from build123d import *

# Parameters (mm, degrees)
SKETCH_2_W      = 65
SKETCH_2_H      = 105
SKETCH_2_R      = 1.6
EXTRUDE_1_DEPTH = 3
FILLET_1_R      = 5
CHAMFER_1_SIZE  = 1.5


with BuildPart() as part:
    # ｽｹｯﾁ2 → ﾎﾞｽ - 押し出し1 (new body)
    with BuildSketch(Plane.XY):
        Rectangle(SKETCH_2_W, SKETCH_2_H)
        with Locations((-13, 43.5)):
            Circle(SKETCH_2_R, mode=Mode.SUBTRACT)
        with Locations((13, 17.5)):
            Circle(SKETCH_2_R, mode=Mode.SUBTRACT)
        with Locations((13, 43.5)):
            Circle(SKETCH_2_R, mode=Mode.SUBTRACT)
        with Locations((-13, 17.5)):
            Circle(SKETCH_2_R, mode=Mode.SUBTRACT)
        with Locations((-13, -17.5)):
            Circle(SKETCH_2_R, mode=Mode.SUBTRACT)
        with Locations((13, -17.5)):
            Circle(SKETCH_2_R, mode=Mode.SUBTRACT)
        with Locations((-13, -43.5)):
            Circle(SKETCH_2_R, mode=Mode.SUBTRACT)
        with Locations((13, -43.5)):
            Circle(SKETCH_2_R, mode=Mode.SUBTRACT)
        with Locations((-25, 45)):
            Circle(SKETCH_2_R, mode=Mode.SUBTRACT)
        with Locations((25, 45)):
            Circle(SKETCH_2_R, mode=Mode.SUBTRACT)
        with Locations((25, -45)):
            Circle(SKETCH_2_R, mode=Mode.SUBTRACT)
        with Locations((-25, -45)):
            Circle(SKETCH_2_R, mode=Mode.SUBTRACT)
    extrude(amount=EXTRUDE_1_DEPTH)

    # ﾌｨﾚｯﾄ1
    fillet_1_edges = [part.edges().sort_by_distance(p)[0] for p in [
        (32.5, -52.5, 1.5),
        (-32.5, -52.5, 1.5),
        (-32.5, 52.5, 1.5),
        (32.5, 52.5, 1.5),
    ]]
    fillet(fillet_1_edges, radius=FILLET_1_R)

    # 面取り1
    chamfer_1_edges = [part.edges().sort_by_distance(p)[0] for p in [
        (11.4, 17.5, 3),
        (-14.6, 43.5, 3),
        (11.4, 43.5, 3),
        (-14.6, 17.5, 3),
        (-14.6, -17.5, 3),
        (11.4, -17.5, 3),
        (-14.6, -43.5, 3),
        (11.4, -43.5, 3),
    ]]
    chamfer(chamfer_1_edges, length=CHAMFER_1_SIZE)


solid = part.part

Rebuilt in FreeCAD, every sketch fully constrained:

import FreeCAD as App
import Part
import Sketcher
Q = App.Units.Quantity


def edges_at(feature, points):
    """Names of the edges that pass closest to the given points."""
    edges = feature.Shape.Edges
    near = lambda p: min(range(len(edges)), key=lambda i: edges[i].distToShape(Part.Vertex(*p))[0])
    return sorted({f"Edge{near(p) + 1}" for p in points})

doc = App.newDocument("Part")
body = doc.addObject("PartDesign::Body", "Body")

# Sketch on XY plane
sketch1 = body.newObject("Sketcher::SketchObject", "Sketch")
sketch1.AttachmentSupport = (doc.getObject("XY_Plane"), [""])
sketch1.MapMode = "FlatFace"
sketch1.addGeometry([
    Part.LineSegment(App.Vector(-32.5, 52.5, 0), App.Vector(-32.5, -52.5, 0)),  # 0
    Part.LineSegment(App.Vector(-32.5, -52.5, 0), App.Vector(32.5, -52.5, 0)),  # 1
    Part.LineSegment(App.Vector(32.5, -52.5, 0), App.Vector(32.5, 52.5, 0)),  # 2
    Part.LineSegment(App.Vector(32.5, 52.5, 0), App.Vector(-32.5, 52.5, 0)),  # 3
    Part.Circle(App.Vector(-25, -45, 0), App.Vector(0, 0, 1), 1.6),  # 4
    Part.Circle(App.Vector(-13, -43.5, 0), App.Vector(0, 0, 1), 1.6),  # 5
    Part.Circle(App.Vector(-13, -17.5, 0), App.Vector(0, 0, 1), 1.6),  # 6
    Part.Circle(App.Vector(13, -43.5, 0), App.Vector(0, 0, 1), 1.6),  # 7
    Part.Circle(App.Vector(25, -45, 0), App.Vector(0, 0, 1), 1.6),  # 8
    Part.Circle(App.Vector(13, -17.5, 0), App.Vector(0, 0, 1), 1.6),  # 9
    Part.Circle(App.Vector(-13, 17.5, 0), App.Vector(0, 0, 1), 1.6),  # 10
    Part.Circle(App.Vector(-25, 45, 0), App.Vector(0, 0, 1), 1.6),  # 11
    Part.Circle(App.Vector(-13, 43.5, 0), App.Vector(0, 0, 1), 1.6),  # 12
    Part.Circle(App.Vector(13, 17.5, 0), App.Vector(0, 0, 1), 1.6),  # 13
    Part.Circle(App.Vector(13, 43.5, 0), App.Vector(0, 0, 1), 1.6),  # 14
    Part.Circle(App.Vector(25, 45, 0), App.Vector(0, 0, 1), 1.6),  # 15
], False)
sketch1.addConstraint([
    Sketcher.Constraint("Coincident", 0, 2, 1, 1),
    Sketcher.Constraint("Coincident", 1, 2, 2, 1),
    Sketcher.Constraint("Coincident", 2, 2, 3, 1),
    Sketcher.Constraint("Coincident", 3, 2, 0, 1),
    Sketcher.Constraint("Vertical", 0),
    Sketcher.Constraint("Horizontal", 1),
    Sketcher.Constraint("Vertical", 2),
    Sketcher.Constraint("Horizontal", 3),
    Sketcher.Constraint("Equal", 4, 5),
    Sketcher.Constraint("Equal", 5, 6),
    Sketcher.Constraint("Equal", 6, 7),
    Sketcher.Constraint("Equal", 7, 8),
    Sketcher.Constraint("Equal", 8, 9),
    Sketcher.Constraint("Equal", 9, 10),
    Sketcher.Constraint("Equal", 10, 11),
    Sketcher.Constraint("Equal", 11, 12),
    Sketcher.Constraint("Equal", 12, 13),
    Sketcher.Constraint("Equal", 13, 14),
    Sketcher.Constraint("Equal", 14, 15),
    Sketcher.Constraint("Symmetric", 9, 3, 10, 3, -1, 1),
    Sketcher.Constraint("Symmetric", 8, 3, 11, 3, -1, 1),
    Sketcher.Constraint("Symmetric", 7, 3, 12, 3, -1, 1),
    Sketcher.Constraint("Symmetric", 6, 3, 13, 3, -1, 1),
    Sketcher.Constraint("Symmetric", 5, 3, 14, 3, -1, 1),
    Sketcher.Constraint("Symmetric", 4, 3, 15, 3, -1, 1),
    Sketcher.Constraint("Symmetric", 0, 2, 2, 2, -1, 1),
    Sketcher.Constraint("Symmetric", 5, 3, 7, 3, -2),
    Sketcher.Constraint("Symmetric", 4, 3, 8, 3, -2),
    Sketcher.Constraint("Symmetric", 6, 3, 9, 3, -2),
    Sketcher.Constraint("Vertical", 5, 3, 6, 3),
    Sketcher.Constraint("Diameter", 4, Q("3.2 mm")),
    Sketcher.Constraint("DistanceX", 1, 1, 1, 2, Q("65 mm")),
    Sketcher.Constraint("DistanceY", 0, 2, 0, 1, Q("105 mm")),
    Sketcher.Constraint("DistanceX", 4, 3, -1, 1, Q("25 mm")),
    Sketcher.Constraint("DistanceY", 4, 3, -1, 1, Q("45 mm")),
    Sketcher.Constraint("DistanceX", 5, 3, -1, 1, Q("13 mm")),
    Sketcher.Constraint("DistanceY", 5, 3, 6, 3, Q("26 mm")),
    Sketcher.Constraint("DistanceY", 6, 3, 10, 3, Q("35 mm")),
])
pad1 = body.newObject("PartDesign::Pad", "Pad")
pad1.Profile = sketch1
pad1.Length = 3
doc.recompute()

fillet = body.newObject("PartDesign::Fillet", "Fillet")
fillet.Base = (pad1, edges_at(pad1, [
    (32.5, -52.5, 1.5),
    (-32.5, -52.5, 1.5),
    (-32.5, 52.5, 1.5),
    (32.5, 52.5, 1.5),
]))
fillet.Radius = 5
doc.recompute()

chamfer = body.newObject("PartDesign::Chamfer", "Chamfer")
chamfer.Base = (fillet, edges_at(fillet, [
    (11.4, 17.5, 3),
    (-14.6, 43.5, 3),
    (11.4, 43.5, 3),
    (-14.6, 17.5, 3),
    (-14.6, -17.5, 3),
    (11.4, -17.5, 3),
    (-14.6, -43.5, 3),
    (11.4, -43.5, 3),
]))
chamfer.Size = 1.5

doc.recompute()
